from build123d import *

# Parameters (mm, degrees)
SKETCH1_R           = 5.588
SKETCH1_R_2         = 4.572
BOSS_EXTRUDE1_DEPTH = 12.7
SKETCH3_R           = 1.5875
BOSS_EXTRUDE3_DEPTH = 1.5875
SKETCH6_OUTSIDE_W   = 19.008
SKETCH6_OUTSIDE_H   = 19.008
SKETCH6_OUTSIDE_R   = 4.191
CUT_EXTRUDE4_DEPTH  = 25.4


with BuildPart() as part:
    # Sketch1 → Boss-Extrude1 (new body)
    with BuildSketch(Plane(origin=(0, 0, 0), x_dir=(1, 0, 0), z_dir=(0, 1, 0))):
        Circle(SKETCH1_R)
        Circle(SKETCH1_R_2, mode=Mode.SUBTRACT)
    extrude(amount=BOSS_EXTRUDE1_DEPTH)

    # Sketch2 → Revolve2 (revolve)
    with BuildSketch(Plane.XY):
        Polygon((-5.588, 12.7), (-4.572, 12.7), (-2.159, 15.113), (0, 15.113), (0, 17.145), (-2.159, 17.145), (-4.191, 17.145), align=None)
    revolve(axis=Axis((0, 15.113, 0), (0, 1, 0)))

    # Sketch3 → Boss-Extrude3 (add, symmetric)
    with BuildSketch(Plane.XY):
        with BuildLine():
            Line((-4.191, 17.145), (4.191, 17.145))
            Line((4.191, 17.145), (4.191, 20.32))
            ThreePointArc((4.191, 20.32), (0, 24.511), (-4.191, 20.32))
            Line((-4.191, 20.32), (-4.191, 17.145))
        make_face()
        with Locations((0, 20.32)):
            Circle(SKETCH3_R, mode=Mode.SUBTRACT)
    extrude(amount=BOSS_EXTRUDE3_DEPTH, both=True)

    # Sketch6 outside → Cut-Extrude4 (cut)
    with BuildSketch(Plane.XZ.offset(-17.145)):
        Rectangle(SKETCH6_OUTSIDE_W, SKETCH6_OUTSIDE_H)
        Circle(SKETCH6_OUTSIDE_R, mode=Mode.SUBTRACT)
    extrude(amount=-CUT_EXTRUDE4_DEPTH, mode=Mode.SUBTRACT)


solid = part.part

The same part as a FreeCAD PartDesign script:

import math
import FreeCAD as App
import Part
import Sketcher

V = App.Vector
Q = App.Units.Quantity

doc = App.newDocument("Part")
params = doc.addObject("Spreadsheet::Sheet", "Params")
for row, (alias, value) in enumerate([
    ("sketch1_diameter", "0.44 in"),
    ("sketch1_diameter2", "0.36 in"),
    ("pad1_length", "0.5 in"),
    ("sketch2_width", "0.04 in"),
    ("sketch2_height", "0.08 in"),
    ("sketch2_width2", "0.085 in"),
    ("sketch2_width3", "0.165 in"),
    ("revolution_angle", "360 deg"),
    ("sketch3_diameter", "0.125 in"),
    ("sketch3_radius", "0.165 in"),
    ("sketch3_height", "0.125 in"),
    ("pad2_length", "0.125 in"),
    ("sketch4_diameter", "0.33 in"),
    ("pocket1_length", "1 in"),
], start=1):
    params.set(f"A{row}", alias)
    params.set(f"B{row}", "=" + value)
    params.setAlias(f"B{row}", alias)

body = doc.addObject("PartDesign::Body", "Body")

sketch1 = body.newObject("Sketcher::SketchObject", "Sketch")
sketch1.AttachmentSupport = (doc.getObject("XZ_Plane"), [""])
sketch1.MapMode = "FlatFace"
sketch1.addGeometry([
    Part.Circle(V(0, 0, 0), V(0, 0, 1), 5.588),
    Part.Circle(V(0, 0, 0), V(0, 0, 1), 4.572),
], False)
sketch1.addConstraint([
    Sketcher.Constraint("Coincident", 0, 3, -1, 1),
    Sketcher.Constraint("Coincident", 1, 3, -1, 1),
    Sketcher.Constraint("Diameter", 0, Q("0.44 in")),
    Sketcher.Constraint("Diameter", 1, Q("0.36 in")),
])
sketch1.setExpression("Constraints[2]", "Params.sketch1_diameter")
sketch1.setExpression("Constraints[3]", "Params.sketch1_diameter2")
pad1 = body.newObject("PartDesign::Pad", "Pad")
pad1.Profile = sketch1
pad1.setExpression("Length", "Params.pad1_length")
pad1.Reversed = True

sketch2 = body.newObject("Sketcher::SketchObject", "Sketch001")
sketch2.AttachmentSupport = (doc.getObject("XY_Plane"), [""])
sketch2.MapMode = "FlatFace"
sketch2.addGeometry([
    Part.LineSegment(V(-5.588, 12.7, 0), V(-4.572, 12.7, 0)),
    Part.LineSegment(V(-4.572, 12.7, 0), V(-2.159, 15.113, 0)),
    Part.LineSegment(V(-2.159, 15.113, 0), V(0, 15.113, 0)),
    Part.LineSegment(V(0, 15.113, 0), V(0, 17.145, 0)),
    Part.LineSegment(V(0, 17.145, 0), V(-4.191, 17.145, 0)),
    Part.LineSegment(V(-4.191, 17.145, 0), V(-5.588, 12.7, 0)),
], False)
sketch2.addConstraint([
    Sketcher.Constraint("Coincident", 0, 2, 1, 1),
    Sketcher.Constraint("Coincident", 1, 2, 2, 1),
    Sketcher.Constraint("Coincident", 2, 2, 3, 1),
    Sketcher.Constraint("Coincident", 3, 2, 4, 1),
    Sketcher.Constraint("Coincident", 4, 2, 5, 1),
    Sketcher.Constraint("Coincident", 5, 2, 0, 1),
    Sketcher.Constraint("Horizontal", 0),
    Sketcher.Constraint("Horizontal", 2),
    Sketcher.Constraint("Vertical", 3),
    Sketcher.Constraint("Horizontal", 4),
    Sketcher.Constraint("PointOnObject", 2, 2, -2),
    Sketcher.Constraint("Angle", 1, Q("45 deg")),
    Sketcher.Constraint("DistanceX", 0, 1, 0, 2, Q("0.04 in")),
    Sketcher.Constraint("DistanceY", 3, 1, 3, 2, Q("0.08 in")),
    Sketcher.Constraint("DistanceY", -1, 1, 0, 2, Q("0.5 in")),
    Sketcher.Constraint("DistanceX", 2, 1, 2, 2, Q("0.085 in")),
    Sketcher.Constraint("DistanceX", 4, 2, 4, 1, Q("0.165 in")),
    Sketcher.Constraint("DistanceX", 0, 2, -1, 1, Q("0.18 in")),
])
sketch2.setExpression("Constraints[12]", "Params.sketch2_width")
sketch2.setExpression("Constraints[13]", "Params.sketch2_height")
sketch2.setExpression("Constraints[15]", "Params.sketch2_width2")
sketch2.setExpression("Constraints[16]", "Params.sketch2_width3")
revolution = body.newObject("PartDesign::Revolution", "Revolution")
revolution.Profile = sketch2
revolution.ReferenceAxis = (sketch2, ["V_Axis"])
revolution.setExpression("Angle", "Params.revolution_angle")

sketch3 = body.newObject("Sketcher::SketchObject", "Sketch002")
sketch3.AttachmentSupport = (doc.getObject("XY_Plane"), [""])
sketch3.MapMode = "FlatFace"
sketch3.addGeometry([
    Part.LineSegment(V(-4.191, 17.145, 0), V(4.191, 17.145, 0)),
    Part.LineSegment(V(4.191, 17.145, 0), V(4.191, 20.32, 0)),
    Part.ArcOfCircle(Part.Circle(V(0, 20.32, 0), V(0, 0, 1), 4.191), math.radians(0), math.radians(180)),
    Part.LineSegment(V(-4.191, 20.32, 0), V(-4.191, 17.145, 0)),
    Part.Circle(V(0, 20.32, 0), V(0, 0, 1), 1.5875),
], False)
sketch3.addConstraint([
    Sketcher.Constraint("Coincident", 0, 2, 1, 1),
    Sketcher.Constraint("Tangent", 1, 2, 2, 1),
    Sketcher.Constraint("Tangent", 2, 2, 3, 1),
    Sketcher.Constraint("Coincident", 3, 2, 0, 1),
    Sketcher.Constraint("Horizontal", 0),
    Sketcher.Constraint("Vertical", 1),
    Sketcher.Constraint("Vertical", 3),
    Sketcher.Constraint("Coincident", 4, 3, 2, 3),
    Sketcher.Constraint("PointOnObject", 2, 3, -2),
    Sketcher.Constraint("Diameter", 4, Q("0.125 in")),
    Sketcher.Constraint("Radius", 2, Q("0.165 in")),
    Sketcher.Constraint("DistanceY", -1, 1, 2, 3, Q("0.8 in")),
    Sketcher.Constraint("DistanceY", 1, 1, 1, 2, Q("0.125 in")),
])
sketch3.setExpression("Constraints[9]", "Params.sketch3_diameter")
sketch3.setExpression("Constraints[10]", "Params.sketch3_radius")
sketch3.setExpression("Constraints[12]", "Params.sketch3_height")
pad2 = body.newObject("PartDesign::Pad", "Pad001")
pad2.Profile = sketch3
pad2.setExpression("Length", "Params.pad2_length")
pad2.Midplane = True

sketch4 = body.newObject("Sketcher::SketchObject", "Sketch003")
sketch4.AttachmentSupport = (doc.getObject("XZ_Plane"), [""])
sketch4.MapMode = "FlatFace"
sketch4.AttachmentOffset = App.Placement(V(0, 0, -0.675 * 25.4), App.Rotation())
sketch4.addGeometry([
    Part.LineSegment(V(-9.504, 9.504, 0), V(-9.504, -9.504, 0)),
    Part.LineSegment(V(-9.504, -9.504, 0), V(9.504, -9.504, 0)),
    Part.LineSegment(V(9.504, -9.504, 0), V(9.504, 9.504, 0)),
    Part.LineSegment(V(9.504, 9.504, 0), V(-9.504, 9.504, 0)),
    Part.Circle(V(0, 0, 0), V(0, 0, 1), 4.191),
], False)
sketch4.addConstraint([
    Sketcher.Constraint("Coincident", 0, 2, 1, 1),
    Sketcher.Constraint("Coincident", 1, 2, 2, 1),
    Sketcher.Constraint("Coincident", 2, 2, 3, 1),
    Sketcher.Constraint("Coincident", 3, 2, 0, 1),
    Sketcher.Constraint("Vertical", 0),
    Sketcher.Constraint("Horizontal", 1),
    Sketcher.Constraint("Vertical", 2),
    Sketcher.Constraint("Horizontal", 3),
    Sketcher.Constraint("Coincident", 4, 3, -1, 1),
    Sketcher.Constraint("Symmetric", 0, 2, 2, 2, -1, 1),
    Sketcher.Constraint("Equal", 3, 0),
    Sketcher.Constraint("Diameter", 4, Q("0.33 in")),
    Sketcher.Constraint("DistanceX", 1, 1, 1, 2, 19.008),
])
sketch4.setExpression("Constraints[11]", "Params.sketch4_diameter")
pocket1 = body.newObject("PartDesign::Pocket", "Pocket")
pocket1.Profile = sketch4
pocket1.setExpression("Length", "Params.pocket1_length")

doc.recompute()
